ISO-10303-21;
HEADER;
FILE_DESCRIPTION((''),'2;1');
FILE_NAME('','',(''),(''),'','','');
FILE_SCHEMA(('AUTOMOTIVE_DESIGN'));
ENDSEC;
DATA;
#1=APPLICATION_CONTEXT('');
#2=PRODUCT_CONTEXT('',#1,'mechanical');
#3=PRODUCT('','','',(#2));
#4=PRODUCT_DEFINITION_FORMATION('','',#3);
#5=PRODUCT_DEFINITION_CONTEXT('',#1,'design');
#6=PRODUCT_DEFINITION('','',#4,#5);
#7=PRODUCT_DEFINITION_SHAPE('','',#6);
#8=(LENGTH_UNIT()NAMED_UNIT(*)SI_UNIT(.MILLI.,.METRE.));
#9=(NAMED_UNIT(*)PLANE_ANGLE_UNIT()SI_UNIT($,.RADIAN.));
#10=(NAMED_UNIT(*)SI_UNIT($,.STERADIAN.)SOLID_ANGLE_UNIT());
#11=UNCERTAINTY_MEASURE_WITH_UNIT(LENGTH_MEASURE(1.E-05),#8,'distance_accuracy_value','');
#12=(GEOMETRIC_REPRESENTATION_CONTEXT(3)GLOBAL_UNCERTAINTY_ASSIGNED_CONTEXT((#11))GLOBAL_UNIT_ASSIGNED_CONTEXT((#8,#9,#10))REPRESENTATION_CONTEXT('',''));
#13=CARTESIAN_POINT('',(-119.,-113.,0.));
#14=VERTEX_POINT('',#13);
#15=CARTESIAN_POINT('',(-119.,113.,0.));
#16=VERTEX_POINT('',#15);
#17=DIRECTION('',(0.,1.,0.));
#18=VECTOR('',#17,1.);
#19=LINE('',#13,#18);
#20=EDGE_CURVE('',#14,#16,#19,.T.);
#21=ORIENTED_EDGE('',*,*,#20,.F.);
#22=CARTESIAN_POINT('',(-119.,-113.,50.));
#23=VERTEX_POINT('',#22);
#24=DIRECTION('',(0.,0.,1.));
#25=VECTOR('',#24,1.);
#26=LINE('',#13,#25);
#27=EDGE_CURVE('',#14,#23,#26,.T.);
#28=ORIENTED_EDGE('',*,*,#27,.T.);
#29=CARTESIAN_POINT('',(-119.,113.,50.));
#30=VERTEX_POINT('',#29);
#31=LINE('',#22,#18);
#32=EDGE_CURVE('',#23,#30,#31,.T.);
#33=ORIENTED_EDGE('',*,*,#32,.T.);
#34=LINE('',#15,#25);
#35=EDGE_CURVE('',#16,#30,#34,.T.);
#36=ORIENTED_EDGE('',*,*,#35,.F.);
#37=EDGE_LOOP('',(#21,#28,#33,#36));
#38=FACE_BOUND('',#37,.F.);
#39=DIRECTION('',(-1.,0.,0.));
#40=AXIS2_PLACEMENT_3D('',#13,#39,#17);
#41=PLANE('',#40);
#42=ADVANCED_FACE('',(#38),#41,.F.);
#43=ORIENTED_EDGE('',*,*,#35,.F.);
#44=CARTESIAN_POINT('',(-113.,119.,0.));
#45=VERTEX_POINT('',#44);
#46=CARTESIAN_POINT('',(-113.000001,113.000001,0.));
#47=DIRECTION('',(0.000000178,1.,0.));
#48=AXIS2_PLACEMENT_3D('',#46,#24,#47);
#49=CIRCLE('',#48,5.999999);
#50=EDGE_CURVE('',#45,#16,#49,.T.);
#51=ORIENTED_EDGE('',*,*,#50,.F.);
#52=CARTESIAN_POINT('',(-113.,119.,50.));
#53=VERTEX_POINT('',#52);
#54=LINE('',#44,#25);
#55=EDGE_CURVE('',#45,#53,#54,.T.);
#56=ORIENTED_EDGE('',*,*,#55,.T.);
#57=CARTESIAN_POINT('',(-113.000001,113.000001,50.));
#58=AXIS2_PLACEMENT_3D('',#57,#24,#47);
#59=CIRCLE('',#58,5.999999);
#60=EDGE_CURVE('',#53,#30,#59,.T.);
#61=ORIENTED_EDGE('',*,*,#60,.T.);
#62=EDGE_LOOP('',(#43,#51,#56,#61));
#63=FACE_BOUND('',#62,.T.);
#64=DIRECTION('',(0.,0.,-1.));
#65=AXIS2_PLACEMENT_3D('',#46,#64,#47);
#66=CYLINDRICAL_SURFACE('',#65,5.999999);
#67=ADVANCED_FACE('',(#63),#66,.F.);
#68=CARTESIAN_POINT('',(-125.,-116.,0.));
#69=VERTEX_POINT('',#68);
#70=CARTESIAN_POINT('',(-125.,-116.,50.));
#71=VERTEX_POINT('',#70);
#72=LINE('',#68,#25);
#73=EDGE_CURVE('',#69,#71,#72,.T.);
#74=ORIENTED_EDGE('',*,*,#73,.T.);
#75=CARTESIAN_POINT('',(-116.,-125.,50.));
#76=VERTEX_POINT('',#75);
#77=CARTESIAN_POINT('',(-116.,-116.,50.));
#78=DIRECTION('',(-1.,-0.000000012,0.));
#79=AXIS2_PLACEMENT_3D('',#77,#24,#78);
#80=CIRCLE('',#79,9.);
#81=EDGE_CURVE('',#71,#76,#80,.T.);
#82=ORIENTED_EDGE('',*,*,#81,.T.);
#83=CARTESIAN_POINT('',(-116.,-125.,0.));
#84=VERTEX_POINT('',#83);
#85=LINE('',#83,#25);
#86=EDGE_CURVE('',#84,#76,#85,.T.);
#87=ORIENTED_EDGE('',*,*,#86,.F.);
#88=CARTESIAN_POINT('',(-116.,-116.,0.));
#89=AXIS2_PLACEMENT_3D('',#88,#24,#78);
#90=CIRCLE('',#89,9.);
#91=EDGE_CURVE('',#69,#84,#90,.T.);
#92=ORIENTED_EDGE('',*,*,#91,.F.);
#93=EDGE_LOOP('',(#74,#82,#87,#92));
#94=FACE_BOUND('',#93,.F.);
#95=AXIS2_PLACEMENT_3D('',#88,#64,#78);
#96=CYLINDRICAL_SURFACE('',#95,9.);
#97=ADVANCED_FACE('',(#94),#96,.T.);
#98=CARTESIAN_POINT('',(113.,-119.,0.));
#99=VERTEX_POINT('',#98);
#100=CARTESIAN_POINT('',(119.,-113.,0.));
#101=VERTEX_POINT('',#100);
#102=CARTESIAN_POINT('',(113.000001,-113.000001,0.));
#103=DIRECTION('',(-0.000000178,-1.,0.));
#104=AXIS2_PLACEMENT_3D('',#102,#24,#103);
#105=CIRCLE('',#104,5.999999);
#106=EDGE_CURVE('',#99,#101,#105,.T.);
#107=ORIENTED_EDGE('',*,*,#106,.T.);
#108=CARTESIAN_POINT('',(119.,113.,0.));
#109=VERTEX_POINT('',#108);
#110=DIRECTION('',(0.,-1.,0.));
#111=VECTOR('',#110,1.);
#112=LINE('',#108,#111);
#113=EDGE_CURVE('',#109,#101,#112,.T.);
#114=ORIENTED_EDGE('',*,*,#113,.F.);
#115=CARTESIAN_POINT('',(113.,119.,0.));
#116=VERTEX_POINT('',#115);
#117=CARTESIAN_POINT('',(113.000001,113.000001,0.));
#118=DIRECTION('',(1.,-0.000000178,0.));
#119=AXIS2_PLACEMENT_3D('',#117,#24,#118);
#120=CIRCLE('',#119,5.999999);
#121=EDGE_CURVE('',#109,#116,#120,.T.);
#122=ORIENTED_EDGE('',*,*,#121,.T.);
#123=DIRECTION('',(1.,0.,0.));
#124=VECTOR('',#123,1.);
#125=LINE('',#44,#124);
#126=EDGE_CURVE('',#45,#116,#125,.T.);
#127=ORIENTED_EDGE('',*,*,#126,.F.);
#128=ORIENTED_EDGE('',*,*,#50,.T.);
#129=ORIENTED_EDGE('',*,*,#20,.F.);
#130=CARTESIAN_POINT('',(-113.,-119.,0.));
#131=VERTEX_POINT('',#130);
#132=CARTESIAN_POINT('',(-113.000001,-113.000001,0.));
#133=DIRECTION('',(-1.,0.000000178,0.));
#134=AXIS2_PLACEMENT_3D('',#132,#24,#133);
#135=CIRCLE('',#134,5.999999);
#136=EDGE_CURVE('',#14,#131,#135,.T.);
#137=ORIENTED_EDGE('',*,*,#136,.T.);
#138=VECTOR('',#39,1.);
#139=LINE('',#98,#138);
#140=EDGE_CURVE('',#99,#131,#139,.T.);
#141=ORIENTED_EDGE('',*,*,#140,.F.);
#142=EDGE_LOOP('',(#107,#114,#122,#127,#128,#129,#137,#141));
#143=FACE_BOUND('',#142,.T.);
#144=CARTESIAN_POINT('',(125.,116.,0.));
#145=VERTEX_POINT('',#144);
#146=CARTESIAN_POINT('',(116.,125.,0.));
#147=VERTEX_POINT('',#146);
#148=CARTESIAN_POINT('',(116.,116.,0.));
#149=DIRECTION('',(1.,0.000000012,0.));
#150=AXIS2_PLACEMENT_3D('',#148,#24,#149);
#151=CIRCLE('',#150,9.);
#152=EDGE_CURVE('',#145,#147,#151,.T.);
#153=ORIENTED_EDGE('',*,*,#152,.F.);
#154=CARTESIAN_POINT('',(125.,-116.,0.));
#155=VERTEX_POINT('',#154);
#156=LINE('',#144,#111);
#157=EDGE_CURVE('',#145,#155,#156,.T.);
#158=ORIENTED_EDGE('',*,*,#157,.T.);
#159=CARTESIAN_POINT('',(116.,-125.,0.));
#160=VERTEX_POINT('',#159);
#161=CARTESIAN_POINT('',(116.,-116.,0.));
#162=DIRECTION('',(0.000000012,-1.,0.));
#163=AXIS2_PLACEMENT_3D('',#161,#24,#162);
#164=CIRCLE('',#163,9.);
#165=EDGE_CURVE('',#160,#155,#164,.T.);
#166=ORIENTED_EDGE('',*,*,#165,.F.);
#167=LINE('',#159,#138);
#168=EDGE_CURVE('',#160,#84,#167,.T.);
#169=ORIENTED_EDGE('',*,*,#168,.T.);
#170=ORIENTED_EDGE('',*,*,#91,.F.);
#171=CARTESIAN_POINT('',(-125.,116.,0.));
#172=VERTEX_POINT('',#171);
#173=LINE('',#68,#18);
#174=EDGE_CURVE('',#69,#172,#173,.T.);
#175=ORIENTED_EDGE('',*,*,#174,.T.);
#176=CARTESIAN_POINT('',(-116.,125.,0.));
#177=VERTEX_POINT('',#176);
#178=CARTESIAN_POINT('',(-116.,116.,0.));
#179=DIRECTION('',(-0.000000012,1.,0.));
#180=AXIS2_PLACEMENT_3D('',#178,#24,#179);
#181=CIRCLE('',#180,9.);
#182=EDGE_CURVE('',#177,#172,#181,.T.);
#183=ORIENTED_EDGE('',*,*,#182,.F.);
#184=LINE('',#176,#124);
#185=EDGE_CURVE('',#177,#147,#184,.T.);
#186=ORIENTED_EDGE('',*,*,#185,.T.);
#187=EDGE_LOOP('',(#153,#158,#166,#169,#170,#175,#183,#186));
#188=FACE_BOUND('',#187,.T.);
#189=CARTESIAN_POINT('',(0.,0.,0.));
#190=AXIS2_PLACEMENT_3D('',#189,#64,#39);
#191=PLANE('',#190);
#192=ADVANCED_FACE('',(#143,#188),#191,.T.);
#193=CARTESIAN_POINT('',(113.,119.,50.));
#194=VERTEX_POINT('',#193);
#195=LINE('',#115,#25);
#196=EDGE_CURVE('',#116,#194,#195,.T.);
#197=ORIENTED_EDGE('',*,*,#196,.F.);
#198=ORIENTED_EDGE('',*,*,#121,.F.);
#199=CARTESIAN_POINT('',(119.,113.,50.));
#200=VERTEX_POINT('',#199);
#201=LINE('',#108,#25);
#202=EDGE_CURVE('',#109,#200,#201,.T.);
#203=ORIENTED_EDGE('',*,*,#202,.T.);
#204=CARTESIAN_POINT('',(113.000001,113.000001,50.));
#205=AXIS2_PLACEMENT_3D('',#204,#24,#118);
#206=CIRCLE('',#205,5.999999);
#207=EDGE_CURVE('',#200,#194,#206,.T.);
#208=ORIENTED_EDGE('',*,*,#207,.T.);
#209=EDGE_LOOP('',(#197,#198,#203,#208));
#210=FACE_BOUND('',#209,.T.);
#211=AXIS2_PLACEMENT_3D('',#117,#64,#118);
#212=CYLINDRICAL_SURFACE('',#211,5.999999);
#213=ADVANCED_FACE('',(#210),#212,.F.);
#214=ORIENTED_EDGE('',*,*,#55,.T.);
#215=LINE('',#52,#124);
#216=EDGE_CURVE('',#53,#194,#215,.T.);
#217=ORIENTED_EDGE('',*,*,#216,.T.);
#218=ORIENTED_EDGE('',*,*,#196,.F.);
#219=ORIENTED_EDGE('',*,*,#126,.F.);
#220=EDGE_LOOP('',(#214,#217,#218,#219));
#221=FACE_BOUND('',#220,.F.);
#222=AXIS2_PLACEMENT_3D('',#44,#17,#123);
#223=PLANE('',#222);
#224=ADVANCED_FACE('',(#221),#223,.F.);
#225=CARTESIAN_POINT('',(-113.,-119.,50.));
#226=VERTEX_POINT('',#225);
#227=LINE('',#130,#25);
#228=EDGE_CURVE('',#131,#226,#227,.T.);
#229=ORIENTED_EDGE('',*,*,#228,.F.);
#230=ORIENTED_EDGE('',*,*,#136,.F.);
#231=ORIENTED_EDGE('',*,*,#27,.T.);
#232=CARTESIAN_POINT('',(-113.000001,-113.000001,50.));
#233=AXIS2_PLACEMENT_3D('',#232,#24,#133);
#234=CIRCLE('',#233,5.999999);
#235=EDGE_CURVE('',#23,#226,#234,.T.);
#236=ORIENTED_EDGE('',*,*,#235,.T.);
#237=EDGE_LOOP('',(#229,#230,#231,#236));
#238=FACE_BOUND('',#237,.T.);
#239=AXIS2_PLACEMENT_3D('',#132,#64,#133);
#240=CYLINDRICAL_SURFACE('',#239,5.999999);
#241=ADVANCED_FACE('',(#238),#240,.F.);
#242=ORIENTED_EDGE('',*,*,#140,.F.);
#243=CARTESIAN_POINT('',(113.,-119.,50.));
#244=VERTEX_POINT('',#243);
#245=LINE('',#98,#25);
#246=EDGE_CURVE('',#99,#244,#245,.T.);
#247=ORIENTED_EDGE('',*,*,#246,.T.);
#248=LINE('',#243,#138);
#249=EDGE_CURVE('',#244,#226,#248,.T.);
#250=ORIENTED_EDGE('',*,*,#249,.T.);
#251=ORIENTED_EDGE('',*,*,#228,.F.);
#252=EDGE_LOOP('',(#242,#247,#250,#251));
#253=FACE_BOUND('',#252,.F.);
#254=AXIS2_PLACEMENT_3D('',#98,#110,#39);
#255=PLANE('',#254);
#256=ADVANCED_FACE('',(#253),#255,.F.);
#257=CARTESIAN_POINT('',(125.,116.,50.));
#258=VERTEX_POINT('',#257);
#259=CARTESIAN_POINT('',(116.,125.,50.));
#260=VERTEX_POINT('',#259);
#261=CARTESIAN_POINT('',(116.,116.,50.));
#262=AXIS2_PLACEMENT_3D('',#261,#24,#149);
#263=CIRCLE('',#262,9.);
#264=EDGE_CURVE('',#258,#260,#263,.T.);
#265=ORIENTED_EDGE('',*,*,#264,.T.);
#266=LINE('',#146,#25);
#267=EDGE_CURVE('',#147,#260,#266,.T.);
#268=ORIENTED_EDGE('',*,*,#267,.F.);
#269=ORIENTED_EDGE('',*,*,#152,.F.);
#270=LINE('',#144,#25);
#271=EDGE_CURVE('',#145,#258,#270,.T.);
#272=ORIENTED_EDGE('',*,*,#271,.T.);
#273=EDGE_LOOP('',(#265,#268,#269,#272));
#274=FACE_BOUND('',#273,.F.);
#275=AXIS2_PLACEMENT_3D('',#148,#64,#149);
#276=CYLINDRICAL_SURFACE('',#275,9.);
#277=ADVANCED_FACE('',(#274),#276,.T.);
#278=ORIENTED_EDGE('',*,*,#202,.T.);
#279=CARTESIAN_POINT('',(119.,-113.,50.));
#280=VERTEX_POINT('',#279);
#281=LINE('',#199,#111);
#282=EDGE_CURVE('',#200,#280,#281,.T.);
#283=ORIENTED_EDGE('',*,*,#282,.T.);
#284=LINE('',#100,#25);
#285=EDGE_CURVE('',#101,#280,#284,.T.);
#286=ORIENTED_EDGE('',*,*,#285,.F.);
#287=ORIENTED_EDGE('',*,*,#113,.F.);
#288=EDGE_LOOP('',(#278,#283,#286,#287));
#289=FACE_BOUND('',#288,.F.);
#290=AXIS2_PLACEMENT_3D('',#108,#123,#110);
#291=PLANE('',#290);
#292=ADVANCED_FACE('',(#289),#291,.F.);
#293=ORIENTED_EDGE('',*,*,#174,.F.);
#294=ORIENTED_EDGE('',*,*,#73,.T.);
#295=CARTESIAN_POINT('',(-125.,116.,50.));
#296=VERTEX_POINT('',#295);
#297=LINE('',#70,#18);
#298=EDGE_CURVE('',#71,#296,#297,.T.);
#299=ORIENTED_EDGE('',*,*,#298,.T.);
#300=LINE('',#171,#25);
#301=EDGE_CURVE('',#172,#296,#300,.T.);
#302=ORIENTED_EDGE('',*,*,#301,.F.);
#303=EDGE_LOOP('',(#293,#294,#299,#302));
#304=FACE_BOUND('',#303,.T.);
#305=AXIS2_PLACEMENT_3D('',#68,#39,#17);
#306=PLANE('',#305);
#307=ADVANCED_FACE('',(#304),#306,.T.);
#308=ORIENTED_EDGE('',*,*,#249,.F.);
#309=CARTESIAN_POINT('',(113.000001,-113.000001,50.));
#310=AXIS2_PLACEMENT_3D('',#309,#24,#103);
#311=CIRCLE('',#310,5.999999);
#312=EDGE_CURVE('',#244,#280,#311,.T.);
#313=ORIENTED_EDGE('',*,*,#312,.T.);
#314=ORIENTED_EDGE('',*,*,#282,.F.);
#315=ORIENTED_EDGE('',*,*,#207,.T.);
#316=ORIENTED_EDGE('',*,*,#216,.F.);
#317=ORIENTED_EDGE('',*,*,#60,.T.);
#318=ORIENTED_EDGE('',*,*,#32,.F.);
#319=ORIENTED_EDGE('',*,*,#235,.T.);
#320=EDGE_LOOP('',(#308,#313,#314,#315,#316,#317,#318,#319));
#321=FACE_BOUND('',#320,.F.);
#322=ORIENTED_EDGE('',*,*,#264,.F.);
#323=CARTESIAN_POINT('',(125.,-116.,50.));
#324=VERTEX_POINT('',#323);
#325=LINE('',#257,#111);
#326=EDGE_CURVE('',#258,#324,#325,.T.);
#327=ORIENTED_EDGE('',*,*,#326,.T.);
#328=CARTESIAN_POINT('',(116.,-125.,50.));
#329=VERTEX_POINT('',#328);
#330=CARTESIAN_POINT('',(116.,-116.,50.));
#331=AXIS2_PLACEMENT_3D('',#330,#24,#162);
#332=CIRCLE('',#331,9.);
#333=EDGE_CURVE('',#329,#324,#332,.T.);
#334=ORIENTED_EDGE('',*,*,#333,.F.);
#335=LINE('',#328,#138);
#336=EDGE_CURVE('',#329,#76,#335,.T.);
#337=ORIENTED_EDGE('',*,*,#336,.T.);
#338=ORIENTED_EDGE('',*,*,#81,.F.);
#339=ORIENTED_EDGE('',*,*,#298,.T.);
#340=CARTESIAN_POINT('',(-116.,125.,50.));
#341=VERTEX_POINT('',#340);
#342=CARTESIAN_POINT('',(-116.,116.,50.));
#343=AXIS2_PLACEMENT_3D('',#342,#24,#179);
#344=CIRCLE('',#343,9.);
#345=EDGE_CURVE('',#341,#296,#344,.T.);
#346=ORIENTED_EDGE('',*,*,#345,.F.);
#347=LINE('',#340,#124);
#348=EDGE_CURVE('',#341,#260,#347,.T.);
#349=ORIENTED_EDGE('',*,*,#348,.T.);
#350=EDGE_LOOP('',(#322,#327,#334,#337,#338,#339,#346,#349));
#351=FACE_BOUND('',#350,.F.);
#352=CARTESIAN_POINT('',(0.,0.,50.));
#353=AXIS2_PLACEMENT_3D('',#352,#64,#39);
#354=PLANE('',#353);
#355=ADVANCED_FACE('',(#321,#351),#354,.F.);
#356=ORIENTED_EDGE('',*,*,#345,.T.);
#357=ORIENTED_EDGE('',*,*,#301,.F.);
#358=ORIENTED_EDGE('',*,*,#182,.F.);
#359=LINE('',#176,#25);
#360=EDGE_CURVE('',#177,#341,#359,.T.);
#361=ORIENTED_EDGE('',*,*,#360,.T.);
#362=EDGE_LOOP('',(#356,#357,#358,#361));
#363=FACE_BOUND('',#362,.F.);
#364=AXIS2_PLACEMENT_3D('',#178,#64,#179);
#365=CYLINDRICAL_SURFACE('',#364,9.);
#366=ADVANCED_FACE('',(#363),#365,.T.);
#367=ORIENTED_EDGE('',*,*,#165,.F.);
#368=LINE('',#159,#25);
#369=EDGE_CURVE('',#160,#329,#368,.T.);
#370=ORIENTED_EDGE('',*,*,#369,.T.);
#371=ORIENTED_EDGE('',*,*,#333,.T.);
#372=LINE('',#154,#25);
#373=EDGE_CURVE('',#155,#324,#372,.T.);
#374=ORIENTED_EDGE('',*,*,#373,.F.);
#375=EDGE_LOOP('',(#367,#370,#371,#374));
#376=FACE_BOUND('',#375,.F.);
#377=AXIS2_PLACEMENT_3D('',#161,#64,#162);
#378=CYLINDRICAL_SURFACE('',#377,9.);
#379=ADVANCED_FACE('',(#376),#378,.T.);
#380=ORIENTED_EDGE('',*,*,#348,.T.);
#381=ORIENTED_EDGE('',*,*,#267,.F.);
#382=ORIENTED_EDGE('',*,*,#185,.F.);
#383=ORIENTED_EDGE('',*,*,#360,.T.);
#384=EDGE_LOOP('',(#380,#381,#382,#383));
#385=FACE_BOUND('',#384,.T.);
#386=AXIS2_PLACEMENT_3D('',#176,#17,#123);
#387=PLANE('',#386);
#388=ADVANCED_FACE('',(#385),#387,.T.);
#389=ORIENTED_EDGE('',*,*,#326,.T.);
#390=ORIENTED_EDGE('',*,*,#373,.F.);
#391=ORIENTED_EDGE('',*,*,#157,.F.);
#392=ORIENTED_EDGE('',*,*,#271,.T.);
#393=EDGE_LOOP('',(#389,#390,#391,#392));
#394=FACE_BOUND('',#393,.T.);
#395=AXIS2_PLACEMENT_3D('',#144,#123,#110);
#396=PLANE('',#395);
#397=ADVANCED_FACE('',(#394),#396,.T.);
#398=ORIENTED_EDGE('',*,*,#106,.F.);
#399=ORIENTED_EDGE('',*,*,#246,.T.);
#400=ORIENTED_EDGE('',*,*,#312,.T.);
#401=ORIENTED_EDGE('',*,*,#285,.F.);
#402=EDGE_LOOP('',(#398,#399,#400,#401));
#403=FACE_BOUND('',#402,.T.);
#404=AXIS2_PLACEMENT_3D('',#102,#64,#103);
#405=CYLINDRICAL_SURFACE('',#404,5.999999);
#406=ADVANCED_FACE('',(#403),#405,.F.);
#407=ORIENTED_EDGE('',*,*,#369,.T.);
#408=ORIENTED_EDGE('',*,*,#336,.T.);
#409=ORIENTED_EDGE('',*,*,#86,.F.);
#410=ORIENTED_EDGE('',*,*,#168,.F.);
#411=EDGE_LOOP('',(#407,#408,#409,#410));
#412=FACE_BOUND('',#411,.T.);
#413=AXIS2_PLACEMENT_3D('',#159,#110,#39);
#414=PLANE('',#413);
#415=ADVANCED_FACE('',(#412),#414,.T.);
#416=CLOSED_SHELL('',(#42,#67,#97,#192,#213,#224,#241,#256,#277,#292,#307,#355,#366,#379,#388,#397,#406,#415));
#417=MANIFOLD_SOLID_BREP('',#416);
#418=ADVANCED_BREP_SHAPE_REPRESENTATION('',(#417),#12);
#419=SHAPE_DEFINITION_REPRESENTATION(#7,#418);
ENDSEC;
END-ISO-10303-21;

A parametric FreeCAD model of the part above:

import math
import FreeCAD as App
import Part
import Sketcher

doc = App.newDocument("Part")
body = doc.addObject("PartDesign::Body", "Body")

sketch1 = doc.addObject("Sketcher::SketchObject", "Sketch")
body.addObject(sketch1)
sketch1.AttachmentSupport = (doc.XY_Plane, [""])
sketch1.MapMode = "FlatFace"
sketch1.addGeometry([
    Part.LineSegment(App.Vector(116, 125, 0), App.Vector(-116, 125, 0)),
    Part.ArcOfCircle(Part.Circle(App.Vector(-116, 116, 0), App.Vector(0, 0, 1), 9), math.radians(90), math.radians(180)),
    Part.LineSegment(App.Vector(-125, 116, 0), App.Vector(-125, -116, 0)),
    Part.ArcOfCircle(Part.Circle(App.Vector(-116, -116, 0), App.Vector(0, 0, 1), 9), math.radians(-180), math.radians(-90)),
    Part.LineSegment(App.Vector(-116, -125, 0), App.Vector(116, -125, 0)),
    Part.ArcOfCircle(Part.Circle(App.Vector(116, -116, 0), App.Vector(0, 0, 1), 9), math.radians(-90), math.radians(0)),
    Part.LineSegment(App.Vector(125, -116, 0), App.Vector(125, 116, 0)),
    Part.ArcOfCircle(Part.Circle(App.Vector(116, 116, 0), App.Vector(0, 0, 1), 9), math.radians(0), math.radians(90)),
    Part.LineSegment(App.Vector(-113, 119, 0), App.Vector(113, 119, 0)),
    Part.ArcOfCircle(Part.Circle(App.Vector(113, 113, 0), App.Vector(0, 0, 1), 6), math.radians(0), math.radians(90)),
    Part.LineSegment(App.Vector(119, 113, 0), App.Vector(119, -113, 0)),
    Part.ArcOfCircle(Part.Circle(App.Vector(113, -113, 0), App.Vector(0, 0, 1), 6), math.radians(-90), math.radians(0)),
    Part.LineSegment(App.Vector(113, -119, 0), App.Vector(-113, -119, 0)),
    Part.ArcOfCircle(Part.Circle(App.Vector(-113, -113, 0), App.Vector(0, 0, 1), 6), math.radians(180), math.radians(270)),
    Part.LineSegment(App.Vector(-119, -113, 0), App.Vector(-119, 113, 0)),
    Part.ArcOfCircle(Part.Circle(App.Vector(-113, 113, 0), App.Vector(0, 0, 1), 6), math.radians(90), math.radians(180)),
], False)
sketch1.addConstraint([
    Sketcher.Constraint("Tangent", 0, 2, 1, 1),
    Sketcher.Constraint("Tangent", 1, 2, 2, 1),
    Sketcher.Constraint("Tangent", 2, 2, 3, 1),
    Sketcher.Constraint("Tangent", 3, 2, 4, 1),
    Sketcher.Constraint("Tangent", 4, 2, 5, 1),
    Sketcher.Constraint("Tangent", 5, 2, 6, 1),
    Sketcher.Constraint("Tangent", 6, 2, 7, 1),
    Sketcher.Constraint("Tangent", 7, 2, 0, 1),
    Sketcher.Constraint("Tangent", 8, 2, 9, 2),
    Sketcher.Constraint("Tangent", 9, 1, 10, 1),
    Sketcher.Constraint("Tangent", 10, 2, 11, 2),
    Sketcher.Constraint("Tangent", 11, 1, 12, 1),
    Sketcher.Constraint("Tangent", 12, 2, 13, 2),
    Sketcher.Constraint("Tangent", 13, 1, 14, 1),
    Sketcher.Constraint("Tangent", 14, 2, 15, 2),
    Sketcher.Constraint("Tangent", 15, 1, 8, 1),
    Sketcher.Constraint("Horizontal", 0),
    Sketcher.Constraint("Vertical", 2),
    Sketcher.Constraint("Horizontal", 4),
    Sketcher.Constraint("Vertical", 6),
    Sketcher.Constraint("Horizontal", 8),
    Sketcher.Constraint("Vertical", 10),
    Sketcher.Constraint("Horizontal", 12),
    Sketcher.Constraint("Vertical", 14),
    Sketcher.Constraint("Equal", 1, 3),
    Sketcher.Constraint("Equal", 3, 5),
    Sketcher.Constraint("Equal", 5, 7),
    Sketcher.Constraint("Equal", 9, 11),
    Sketcher.Constraint("Equal", 11, 13),
    Sketcher.Constraint("Equal", 13, 15),
    Sketcher.Constraint("Symmetric", 1, 3, 5, 3, -1, 1),
    Sketcher.Constraint("Symmetric", 9, 3, 13, 3, -1, 1),
    Sketcher.Constraint("Equal", 4, 2),
    Sketcher.Constraint("Equal", 12, 10),
    Sketcher.Constraint("Radius", 1, 9.0),
    Sketcher.Constraint("Radius", 9, 5.999999),
    Sketcher.Constraint("DistanceX", 0, 2, 0, 1, 232.0),
    Sketcher.Constraint("DistanceX", 8, 1, 8, 2, 226.0),
])
pad1 = doc.addObject("PartDesign::Pad", "Pad")
body.addObject(pad1)
pad1.Profile = sketch1
pad1.Length = 50

doc.recompute()
